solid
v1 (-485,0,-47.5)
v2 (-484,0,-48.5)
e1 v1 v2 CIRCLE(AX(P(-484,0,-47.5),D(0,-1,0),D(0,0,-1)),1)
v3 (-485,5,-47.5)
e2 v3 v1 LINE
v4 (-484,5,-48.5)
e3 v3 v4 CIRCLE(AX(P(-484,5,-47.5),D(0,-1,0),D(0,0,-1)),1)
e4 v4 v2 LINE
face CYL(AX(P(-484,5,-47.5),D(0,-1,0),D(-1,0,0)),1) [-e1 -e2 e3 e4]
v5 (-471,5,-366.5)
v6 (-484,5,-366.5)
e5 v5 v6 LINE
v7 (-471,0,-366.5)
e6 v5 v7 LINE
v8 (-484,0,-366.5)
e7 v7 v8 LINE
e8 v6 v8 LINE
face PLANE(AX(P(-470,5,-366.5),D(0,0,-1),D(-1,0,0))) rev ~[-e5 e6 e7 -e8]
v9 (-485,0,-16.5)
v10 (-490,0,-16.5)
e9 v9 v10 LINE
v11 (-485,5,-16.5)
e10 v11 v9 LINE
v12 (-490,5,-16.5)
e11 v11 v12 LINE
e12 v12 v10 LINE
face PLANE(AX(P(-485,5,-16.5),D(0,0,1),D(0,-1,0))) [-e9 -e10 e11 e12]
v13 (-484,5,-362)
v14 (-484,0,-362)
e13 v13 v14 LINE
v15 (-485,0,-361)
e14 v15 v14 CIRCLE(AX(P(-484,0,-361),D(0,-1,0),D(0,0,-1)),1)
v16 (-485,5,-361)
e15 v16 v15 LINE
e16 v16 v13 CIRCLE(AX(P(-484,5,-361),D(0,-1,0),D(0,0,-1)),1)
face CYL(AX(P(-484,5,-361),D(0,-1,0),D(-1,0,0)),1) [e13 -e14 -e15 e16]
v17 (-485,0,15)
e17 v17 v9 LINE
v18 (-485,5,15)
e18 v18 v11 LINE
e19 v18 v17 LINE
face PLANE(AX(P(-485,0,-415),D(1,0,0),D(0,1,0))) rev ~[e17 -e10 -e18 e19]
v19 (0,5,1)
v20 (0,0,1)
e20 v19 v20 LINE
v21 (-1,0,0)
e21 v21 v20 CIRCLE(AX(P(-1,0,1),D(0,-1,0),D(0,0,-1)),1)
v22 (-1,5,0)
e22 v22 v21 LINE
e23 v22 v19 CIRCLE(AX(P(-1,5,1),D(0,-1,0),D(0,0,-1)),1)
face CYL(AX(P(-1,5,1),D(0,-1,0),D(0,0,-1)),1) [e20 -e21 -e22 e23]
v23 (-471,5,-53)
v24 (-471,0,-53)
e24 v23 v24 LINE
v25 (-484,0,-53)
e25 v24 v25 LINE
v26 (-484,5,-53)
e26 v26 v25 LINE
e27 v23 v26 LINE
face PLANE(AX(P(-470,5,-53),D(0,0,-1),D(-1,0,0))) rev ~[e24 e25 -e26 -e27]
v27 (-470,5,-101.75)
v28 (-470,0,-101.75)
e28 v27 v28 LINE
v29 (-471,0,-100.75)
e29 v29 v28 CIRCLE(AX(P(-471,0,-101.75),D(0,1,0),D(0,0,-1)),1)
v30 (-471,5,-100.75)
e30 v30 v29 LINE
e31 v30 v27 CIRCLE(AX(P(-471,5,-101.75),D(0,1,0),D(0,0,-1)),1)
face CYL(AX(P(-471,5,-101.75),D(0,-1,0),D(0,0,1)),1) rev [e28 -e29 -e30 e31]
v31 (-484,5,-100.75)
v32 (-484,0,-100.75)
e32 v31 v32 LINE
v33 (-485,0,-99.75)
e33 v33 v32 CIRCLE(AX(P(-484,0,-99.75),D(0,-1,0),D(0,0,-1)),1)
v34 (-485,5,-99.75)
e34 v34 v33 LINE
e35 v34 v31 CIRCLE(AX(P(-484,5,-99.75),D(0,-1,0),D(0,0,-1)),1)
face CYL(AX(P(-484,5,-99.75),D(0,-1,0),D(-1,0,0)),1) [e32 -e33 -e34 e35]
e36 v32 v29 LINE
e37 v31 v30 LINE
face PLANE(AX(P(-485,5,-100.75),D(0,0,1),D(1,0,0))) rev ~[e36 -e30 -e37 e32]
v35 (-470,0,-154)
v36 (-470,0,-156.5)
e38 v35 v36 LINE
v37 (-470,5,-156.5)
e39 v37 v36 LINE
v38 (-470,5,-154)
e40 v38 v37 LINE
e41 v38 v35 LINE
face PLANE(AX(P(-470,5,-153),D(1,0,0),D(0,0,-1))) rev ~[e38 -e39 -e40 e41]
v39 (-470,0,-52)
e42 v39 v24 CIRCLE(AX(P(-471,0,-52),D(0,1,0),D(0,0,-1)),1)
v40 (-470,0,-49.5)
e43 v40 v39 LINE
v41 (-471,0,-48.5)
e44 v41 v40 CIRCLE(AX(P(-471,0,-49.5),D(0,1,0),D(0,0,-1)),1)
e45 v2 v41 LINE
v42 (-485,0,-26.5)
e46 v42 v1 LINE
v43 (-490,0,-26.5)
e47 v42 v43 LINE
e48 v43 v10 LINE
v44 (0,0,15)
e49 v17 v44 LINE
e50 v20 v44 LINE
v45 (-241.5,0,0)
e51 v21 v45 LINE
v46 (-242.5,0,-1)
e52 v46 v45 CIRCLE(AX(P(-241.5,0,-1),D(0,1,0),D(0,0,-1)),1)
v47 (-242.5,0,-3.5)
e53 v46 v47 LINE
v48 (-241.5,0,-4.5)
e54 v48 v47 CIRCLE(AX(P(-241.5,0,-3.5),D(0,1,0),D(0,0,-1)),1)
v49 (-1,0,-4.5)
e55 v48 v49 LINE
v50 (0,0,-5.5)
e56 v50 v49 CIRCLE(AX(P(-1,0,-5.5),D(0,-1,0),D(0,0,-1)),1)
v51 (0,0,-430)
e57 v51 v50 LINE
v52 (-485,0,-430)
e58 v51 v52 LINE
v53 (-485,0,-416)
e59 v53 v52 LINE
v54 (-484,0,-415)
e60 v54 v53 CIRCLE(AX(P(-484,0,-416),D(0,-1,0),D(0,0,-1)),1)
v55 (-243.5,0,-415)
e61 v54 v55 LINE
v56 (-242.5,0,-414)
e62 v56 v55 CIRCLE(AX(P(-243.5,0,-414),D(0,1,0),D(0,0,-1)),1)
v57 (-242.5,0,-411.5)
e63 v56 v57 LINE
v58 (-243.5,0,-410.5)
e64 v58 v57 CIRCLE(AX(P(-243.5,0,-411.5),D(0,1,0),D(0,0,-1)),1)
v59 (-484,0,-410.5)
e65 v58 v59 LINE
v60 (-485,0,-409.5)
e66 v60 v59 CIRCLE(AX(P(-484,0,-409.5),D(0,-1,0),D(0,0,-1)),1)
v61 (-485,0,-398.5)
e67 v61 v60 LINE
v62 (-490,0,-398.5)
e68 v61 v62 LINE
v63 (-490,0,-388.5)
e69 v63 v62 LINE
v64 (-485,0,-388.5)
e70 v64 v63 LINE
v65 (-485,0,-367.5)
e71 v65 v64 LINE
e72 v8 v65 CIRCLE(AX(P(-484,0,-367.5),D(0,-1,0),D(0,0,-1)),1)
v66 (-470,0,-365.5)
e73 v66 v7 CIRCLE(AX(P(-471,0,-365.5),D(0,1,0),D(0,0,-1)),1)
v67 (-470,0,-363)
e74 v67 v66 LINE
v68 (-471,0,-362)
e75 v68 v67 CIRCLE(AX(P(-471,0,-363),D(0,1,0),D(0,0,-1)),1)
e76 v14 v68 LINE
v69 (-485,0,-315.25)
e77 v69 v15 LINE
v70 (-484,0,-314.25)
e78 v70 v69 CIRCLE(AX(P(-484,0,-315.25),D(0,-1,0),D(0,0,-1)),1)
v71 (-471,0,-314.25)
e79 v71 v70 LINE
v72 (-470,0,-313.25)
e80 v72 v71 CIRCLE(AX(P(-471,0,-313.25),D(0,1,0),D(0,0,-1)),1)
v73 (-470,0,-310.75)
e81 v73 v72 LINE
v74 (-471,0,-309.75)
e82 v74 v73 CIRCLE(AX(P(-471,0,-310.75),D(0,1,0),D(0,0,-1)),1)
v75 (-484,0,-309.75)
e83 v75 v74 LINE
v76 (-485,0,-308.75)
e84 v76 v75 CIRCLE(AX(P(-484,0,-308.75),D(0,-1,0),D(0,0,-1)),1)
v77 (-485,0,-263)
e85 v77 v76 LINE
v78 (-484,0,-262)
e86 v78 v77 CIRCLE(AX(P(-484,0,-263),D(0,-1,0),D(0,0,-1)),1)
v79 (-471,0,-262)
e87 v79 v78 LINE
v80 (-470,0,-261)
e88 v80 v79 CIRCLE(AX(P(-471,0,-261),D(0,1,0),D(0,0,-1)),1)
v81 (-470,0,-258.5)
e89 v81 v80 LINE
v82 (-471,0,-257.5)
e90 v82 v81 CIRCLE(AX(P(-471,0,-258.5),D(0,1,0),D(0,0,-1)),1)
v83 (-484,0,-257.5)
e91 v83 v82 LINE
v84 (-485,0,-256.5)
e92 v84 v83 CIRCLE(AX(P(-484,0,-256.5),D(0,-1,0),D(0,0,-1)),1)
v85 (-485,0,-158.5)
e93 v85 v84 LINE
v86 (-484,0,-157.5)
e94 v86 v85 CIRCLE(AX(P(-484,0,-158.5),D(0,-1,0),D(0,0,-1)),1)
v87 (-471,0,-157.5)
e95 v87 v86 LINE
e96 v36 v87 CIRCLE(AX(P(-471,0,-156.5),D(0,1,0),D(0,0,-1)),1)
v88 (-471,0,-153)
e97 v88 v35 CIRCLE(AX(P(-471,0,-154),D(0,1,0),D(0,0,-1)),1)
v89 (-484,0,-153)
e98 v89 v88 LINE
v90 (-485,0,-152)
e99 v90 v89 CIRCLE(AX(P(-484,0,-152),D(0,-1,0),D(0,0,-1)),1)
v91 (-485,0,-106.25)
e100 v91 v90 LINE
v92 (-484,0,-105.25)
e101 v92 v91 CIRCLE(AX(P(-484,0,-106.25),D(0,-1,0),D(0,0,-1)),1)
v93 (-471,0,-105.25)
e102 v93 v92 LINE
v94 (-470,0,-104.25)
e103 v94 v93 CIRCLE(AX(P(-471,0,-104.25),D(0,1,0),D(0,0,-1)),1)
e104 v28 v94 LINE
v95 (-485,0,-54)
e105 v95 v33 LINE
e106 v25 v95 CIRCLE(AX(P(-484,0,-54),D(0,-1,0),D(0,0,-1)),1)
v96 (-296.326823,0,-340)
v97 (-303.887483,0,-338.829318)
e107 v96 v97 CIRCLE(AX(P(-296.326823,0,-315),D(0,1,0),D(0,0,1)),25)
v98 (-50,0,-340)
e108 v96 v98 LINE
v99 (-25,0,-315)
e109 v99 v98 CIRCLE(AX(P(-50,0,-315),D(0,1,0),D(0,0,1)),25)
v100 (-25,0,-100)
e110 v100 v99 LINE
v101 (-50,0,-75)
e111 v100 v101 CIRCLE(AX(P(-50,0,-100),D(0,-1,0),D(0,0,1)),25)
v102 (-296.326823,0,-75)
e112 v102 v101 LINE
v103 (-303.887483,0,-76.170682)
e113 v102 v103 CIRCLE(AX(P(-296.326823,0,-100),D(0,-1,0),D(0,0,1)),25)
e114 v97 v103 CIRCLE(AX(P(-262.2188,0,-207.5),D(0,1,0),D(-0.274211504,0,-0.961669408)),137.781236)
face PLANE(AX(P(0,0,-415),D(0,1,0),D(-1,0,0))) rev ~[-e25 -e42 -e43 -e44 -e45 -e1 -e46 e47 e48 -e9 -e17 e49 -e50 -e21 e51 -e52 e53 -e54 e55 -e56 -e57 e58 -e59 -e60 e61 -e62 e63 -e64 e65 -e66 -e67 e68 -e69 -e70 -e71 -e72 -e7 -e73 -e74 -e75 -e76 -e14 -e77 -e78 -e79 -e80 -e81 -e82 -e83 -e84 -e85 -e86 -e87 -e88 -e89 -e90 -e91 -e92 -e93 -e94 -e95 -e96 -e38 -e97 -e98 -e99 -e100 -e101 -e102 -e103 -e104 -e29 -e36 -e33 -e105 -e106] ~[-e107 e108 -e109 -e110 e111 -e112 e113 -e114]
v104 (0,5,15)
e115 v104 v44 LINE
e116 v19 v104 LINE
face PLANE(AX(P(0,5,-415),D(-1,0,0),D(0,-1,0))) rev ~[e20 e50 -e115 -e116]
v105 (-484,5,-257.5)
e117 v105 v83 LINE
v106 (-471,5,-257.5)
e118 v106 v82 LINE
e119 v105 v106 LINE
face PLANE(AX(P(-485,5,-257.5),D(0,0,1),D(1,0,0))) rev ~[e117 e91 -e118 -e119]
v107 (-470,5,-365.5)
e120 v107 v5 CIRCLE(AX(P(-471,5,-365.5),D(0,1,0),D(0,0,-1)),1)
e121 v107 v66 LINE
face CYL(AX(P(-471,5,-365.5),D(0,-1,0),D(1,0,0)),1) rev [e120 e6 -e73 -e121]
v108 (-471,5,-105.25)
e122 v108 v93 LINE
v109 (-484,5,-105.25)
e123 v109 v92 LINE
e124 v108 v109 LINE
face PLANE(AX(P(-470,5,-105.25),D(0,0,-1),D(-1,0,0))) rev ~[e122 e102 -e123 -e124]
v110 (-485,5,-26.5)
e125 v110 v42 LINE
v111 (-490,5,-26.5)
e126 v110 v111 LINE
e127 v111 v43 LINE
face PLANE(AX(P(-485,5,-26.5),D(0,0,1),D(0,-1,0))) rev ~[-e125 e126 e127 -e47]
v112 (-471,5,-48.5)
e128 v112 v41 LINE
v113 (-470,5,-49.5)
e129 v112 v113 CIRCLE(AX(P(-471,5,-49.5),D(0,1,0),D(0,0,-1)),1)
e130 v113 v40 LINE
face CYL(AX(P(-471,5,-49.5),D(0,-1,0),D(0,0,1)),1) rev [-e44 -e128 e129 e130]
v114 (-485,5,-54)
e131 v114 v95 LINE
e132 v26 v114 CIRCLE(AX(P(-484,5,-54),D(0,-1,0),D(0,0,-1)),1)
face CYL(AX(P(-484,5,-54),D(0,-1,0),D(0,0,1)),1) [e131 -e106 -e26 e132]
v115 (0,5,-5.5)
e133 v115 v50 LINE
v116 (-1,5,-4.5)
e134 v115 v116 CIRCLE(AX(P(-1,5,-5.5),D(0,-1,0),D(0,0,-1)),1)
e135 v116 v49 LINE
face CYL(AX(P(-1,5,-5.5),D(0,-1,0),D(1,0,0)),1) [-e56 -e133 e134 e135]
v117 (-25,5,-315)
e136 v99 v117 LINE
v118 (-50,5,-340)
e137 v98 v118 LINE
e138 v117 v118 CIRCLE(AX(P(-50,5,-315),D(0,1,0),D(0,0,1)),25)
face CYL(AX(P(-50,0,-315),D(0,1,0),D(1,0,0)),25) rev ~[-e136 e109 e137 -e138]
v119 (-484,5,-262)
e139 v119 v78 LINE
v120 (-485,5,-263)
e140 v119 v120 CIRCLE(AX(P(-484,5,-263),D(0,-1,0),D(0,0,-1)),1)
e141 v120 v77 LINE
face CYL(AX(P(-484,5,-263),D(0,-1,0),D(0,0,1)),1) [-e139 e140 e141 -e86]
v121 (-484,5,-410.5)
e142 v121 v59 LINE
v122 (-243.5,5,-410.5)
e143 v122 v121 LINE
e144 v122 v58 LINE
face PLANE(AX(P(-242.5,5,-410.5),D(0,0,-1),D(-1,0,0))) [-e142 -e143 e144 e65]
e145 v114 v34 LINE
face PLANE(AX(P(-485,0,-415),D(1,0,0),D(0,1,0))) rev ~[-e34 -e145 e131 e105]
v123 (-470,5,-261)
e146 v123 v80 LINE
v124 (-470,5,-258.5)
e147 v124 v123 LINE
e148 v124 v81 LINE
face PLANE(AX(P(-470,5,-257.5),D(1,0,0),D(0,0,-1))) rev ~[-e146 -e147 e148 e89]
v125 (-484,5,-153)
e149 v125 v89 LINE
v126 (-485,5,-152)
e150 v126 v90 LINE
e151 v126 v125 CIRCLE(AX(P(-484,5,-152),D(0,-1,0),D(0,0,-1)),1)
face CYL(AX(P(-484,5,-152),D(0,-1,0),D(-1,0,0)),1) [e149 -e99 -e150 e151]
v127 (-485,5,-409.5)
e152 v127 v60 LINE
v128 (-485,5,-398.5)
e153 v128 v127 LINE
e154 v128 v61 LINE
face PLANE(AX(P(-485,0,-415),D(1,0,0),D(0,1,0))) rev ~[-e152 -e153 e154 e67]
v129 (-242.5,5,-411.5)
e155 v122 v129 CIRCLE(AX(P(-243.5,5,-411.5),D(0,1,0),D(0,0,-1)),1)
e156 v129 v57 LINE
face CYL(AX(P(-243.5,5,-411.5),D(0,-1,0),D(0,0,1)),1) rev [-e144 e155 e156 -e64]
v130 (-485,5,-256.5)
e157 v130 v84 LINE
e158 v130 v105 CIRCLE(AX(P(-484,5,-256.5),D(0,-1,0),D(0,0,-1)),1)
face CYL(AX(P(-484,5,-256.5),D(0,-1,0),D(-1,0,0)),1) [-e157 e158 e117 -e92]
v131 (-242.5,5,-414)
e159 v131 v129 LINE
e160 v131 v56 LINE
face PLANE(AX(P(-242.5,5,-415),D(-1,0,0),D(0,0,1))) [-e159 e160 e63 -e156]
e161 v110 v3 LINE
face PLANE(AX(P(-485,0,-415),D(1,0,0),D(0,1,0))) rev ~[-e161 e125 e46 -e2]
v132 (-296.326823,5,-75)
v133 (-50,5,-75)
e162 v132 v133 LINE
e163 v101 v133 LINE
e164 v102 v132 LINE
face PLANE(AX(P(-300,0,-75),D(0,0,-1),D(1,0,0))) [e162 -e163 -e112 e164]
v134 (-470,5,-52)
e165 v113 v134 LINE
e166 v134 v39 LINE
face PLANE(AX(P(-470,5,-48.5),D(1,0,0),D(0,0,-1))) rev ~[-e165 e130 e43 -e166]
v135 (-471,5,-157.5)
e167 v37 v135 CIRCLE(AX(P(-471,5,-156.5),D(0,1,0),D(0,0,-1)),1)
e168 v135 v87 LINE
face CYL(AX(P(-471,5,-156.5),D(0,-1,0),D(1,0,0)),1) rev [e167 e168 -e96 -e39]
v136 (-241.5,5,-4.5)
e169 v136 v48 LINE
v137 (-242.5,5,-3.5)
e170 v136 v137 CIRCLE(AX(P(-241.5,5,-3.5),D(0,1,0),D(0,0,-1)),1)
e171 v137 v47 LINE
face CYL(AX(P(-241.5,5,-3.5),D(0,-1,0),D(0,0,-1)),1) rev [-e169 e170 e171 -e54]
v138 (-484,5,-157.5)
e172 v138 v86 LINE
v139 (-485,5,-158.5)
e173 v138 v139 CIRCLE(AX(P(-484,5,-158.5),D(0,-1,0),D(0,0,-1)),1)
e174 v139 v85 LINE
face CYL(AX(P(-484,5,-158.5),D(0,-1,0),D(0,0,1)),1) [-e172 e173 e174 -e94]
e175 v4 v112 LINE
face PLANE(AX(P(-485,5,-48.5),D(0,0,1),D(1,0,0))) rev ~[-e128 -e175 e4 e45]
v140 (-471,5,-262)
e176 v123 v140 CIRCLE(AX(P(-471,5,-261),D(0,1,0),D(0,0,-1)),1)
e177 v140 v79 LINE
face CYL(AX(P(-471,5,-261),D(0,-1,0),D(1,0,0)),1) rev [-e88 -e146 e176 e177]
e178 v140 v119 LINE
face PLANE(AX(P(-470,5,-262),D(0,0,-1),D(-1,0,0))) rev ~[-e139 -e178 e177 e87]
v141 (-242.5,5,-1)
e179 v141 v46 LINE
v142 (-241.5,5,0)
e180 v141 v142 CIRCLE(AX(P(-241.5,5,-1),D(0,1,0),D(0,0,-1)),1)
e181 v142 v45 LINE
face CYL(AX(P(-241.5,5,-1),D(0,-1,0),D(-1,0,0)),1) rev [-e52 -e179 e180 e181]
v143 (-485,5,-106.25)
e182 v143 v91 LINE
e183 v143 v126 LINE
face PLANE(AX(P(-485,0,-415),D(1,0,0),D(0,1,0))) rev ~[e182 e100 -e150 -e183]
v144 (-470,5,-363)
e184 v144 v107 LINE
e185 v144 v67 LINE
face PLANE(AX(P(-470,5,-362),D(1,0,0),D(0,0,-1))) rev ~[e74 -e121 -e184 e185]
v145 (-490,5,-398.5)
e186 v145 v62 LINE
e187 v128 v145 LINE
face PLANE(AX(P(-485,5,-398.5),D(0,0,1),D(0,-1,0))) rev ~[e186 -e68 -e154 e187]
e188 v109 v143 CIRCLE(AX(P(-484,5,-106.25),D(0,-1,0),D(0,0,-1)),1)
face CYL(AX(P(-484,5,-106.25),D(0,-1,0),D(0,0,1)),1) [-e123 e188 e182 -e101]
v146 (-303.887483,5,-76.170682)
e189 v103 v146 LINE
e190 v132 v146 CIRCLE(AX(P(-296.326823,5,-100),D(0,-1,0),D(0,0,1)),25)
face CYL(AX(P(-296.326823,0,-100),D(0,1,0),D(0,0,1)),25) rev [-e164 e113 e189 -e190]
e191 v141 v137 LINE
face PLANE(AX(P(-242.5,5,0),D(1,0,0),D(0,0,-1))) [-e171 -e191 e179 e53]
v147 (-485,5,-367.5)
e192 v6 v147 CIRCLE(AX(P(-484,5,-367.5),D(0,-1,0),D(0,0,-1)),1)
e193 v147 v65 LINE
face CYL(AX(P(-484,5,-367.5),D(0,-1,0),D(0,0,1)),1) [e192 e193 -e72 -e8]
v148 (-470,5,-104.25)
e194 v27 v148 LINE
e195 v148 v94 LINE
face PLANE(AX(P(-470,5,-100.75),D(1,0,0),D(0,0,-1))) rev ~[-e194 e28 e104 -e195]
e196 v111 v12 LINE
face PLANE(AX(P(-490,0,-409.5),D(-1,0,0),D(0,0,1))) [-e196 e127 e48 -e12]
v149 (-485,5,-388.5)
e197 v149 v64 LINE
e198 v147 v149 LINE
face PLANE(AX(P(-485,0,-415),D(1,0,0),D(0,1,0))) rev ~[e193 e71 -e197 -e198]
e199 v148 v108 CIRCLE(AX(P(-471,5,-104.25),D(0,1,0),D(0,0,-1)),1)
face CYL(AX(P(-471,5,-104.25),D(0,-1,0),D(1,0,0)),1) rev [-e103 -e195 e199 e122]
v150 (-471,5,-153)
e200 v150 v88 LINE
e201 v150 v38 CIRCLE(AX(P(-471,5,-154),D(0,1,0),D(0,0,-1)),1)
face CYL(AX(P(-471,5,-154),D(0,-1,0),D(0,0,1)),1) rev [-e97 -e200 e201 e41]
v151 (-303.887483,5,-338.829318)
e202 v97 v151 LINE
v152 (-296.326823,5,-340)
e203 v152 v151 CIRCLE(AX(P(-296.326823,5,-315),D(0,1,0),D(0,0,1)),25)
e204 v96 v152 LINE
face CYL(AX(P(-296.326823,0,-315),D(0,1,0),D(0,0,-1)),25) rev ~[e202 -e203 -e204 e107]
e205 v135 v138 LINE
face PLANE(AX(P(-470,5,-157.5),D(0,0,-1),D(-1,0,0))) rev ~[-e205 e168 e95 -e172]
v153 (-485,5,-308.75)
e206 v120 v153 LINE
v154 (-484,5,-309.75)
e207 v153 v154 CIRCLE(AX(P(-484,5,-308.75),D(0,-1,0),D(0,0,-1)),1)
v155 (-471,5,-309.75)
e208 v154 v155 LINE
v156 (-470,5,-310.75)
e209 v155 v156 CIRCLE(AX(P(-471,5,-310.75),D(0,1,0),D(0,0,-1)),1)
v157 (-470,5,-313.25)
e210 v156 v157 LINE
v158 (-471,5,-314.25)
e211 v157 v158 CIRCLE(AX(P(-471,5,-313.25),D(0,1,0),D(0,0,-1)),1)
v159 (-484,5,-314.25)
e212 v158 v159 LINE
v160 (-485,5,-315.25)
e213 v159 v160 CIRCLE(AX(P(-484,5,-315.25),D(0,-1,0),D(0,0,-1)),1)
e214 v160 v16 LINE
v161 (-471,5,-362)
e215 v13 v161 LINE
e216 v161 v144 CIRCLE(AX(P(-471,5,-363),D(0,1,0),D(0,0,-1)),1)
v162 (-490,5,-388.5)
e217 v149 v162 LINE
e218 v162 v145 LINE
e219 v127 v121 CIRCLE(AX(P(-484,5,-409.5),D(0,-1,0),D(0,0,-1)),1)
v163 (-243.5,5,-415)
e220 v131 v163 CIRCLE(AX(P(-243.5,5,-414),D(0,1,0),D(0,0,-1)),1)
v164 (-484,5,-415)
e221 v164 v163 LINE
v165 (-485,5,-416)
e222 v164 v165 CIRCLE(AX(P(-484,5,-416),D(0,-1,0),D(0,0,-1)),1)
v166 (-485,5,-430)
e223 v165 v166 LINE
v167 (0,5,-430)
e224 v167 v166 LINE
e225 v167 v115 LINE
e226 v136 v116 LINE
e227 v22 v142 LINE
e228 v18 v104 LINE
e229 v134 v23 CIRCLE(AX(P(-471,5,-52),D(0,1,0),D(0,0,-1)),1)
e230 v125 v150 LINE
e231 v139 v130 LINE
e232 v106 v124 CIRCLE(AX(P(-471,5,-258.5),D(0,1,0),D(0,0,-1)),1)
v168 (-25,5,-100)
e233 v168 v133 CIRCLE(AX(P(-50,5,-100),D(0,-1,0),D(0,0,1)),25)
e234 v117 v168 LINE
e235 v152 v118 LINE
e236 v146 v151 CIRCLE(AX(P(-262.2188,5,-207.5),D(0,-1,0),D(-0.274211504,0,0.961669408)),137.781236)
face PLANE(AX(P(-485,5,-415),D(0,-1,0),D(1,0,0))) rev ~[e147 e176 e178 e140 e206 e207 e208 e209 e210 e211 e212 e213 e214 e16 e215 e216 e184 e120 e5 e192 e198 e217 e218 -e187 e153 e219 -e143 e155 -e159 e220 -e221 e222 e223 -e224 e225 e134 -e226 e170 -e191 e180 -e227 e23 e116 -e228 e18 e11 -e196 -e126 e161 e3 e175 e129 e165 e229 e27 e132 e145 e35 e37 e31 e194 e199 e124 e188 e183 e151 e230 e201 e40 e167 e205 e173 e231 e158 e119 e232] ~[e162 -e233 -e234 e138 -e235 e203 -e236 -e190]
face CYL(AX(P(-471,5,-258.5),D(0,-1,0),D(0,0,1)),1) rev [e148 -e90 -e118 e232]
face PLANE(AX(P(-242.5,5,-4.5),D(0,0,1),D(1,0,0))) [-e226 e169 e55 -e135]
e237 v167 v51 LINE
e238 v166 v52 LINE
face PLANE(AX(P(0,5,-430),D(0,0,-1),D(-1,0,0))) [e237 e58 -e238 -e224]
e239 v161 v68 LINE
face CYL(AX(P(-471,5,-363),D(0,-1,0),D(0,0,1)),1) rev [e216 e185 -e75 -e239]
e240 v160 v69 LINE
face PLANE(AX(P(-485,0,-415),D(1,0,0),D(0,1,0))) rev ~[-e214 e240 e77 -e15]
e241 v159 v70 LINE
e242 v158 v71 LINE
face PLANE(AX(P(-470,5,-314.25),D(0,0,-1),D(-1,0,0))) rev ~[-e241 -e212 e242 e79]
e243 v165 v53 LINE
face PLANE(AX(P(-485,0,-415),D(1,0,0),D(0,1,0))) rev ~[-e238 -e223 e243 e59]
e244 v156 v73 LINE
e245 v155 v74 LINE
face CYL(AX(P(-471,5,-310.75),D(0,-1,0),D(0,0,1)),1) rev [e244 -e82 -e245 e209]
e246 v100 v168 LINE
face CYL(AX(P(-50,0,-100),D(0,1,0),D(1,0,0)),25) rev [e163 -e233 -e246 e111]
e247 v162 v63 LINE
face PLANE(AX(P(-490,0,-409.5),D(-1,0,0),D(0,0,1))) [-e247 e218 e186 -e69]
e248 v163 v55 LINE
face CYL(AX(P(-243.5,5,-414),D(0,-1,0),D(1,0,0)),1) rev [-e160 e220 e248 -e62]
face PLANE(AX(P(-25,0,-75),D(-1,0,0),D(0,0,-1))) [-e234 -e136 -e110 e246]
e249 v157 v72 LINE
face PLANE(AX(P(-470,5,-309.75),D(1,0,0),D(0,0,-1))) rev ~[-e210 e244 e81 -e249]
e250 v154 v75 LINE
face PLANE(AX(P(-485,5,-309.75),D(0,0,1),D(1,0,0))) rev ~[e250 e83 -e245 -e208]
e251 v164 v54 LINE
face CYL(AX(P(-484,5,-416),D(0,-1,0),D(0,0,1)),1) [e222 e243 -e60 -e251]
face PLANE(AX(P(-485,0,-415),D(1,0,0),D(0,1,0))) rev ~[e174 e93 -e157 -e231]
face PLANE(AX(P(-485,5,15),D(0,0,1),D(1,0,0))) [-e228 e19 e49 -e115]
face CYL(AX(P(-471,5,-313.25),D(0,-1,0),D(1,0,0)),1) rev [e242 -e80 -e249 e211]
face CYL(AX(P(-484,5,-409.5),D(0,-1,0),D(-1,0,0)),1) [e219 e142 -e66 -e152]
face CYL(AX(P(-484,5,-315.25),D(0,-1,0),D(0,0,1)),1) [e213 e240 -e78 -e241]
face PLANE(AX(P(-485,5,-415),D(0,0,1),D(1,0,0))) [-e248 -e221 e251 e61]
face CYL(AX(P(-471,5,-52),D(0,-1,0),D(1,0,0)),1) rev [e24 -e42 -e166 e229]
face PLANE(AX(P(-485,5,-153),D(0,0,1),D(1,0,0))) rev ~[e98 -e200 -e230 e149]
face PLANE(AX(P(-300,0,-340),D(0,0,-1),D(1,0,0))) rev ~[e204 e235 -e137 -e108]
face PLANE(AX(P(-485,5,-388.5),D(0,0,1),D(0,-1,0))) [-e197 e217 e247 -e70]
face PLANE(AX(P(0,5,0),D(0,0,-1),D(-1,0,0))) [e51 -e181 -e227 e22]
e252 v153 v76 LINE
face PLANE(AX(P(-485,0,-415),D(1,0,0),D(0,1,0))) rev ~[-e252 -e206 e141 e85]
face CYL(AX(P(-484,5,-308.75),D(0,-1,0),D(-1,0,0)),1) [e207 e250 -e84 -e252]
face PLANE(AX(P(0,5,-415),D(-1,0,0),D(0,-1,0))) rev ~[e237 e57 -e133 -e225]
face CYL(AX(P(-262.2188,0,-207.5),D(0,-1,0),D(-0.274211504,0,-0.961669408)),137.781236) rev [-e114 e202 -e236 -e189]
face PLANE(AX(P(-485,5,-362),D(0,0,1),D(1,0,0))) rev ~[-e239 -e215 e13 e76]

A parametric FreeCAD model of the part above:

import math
import FreeCAD as App
import Part
import Sketcher
from FreeCAD import Vector


def edges_at(feature, points):
    """Names of the edges that pass closest to the given points."""
    edges = feature.Shape.Edges
    near = lambda p: min(range(len(edges)), key=lambda i: edges[i].distToShape(Part.Vertex(*p))[0])
    return sorted({f"Edge{near(p) + 1}" for p in points})

doc = App.newDocument("Part")
params = doc.addObject("Spreadsheet::Sheet", "Params")
for row, (alias, value) in enumerate([
    ("sketch1_width", "485 mm"),
    ("sketch1_width2", "275 mm"),
    ("sketch1_height", "415 mm"),
    ("pad1_length", "5 mm"),
    ("fillet_radius", "25 mm"),
    ("sketch2_width", "485 mm"),
    ("sketch2_height", "5 mm"),
    ("pad2_length", "10 mm"),
    ("sketch3_width", "485 mm"),
    ("sketch3_height", "5 mm"),
    ("pad3_length", "10 mm"),
    ("sketch4_width", "242.5 mm"),
    ("sketch4_height", "4.5 mm"),
    ("pocket1_length", "5 mm"),
    ("sketch5_width", "15 mm"),
    ("sketch5_height", "4.5 mm"),
    ("pocket2_length", "5 mm"),
    ("fillet2_radius", "1 mm"),
    ("sketch6_height", "10 mm"),
    ("sketch6_width", "5 mm"),
    ("pad4_length", "5 mm"),
    ("sketch7_height", "5 mm"),
    ("sketch7_width", "485 mm"),
    ("pad5_length", "5 mm"),
], start=1):
    params.set(f"A{row}", alias)
    params.set(f"B{row}", "=" + value)
    params.setAlias(f"B{row}", alias)

body = doc.addObject("PartDesign::Body", "Body")

# Sketch on XZ plane
sketch1 = doc.addObject("Sketcher::SketchObject", "Sketch")
body.addObject(sketch1)
sketch1.AttachmentSupport = (doc.XZ_Plane, [""])
sketch1.MapMode = "FlatFace"
sketch1.addGeometry([
    Part.LineSegment(Vector(0, 0, 0), Vector(0, -415, 0)),  # 0
    Part.LineSegment(Vector(0, -415, 0), Vector(-485, -415, 0)),  # 1
    Part.LineSegment(Vector(-485, -415, 0), Vector(-485, 0, 0)),  # 2
    Part.LineSegment(Vector(-485, 0, 0), Vector(0, 0, 0)),  # 3
    Part.LineSegment(Vector(-25, -75, 0), Vector(-300, -75, 0)),  # 4
    Part.ArcOfCircle(Part.Circle(Vector(-262, -208, 0), Vector(0, 0, 1), 138), math.radians(106), math.radians(254)),  # 5
    Part.LineSegment(Vector(-300, -340, 0), Vector(-25, -340, 0)),  # 6
    Part.LineSegment(Vector(-25, -340, 0), Vector(-25, -75, 0)),  # 7
], False)
sketch1.addConstraint([
    Sketcher.Constraint("Coincident", 0, 2, 1, 1),
    Sketcher.Constraint("Coincident", 1, 2, 2, 1),
    Sketcher.Constraint("Coincident", 2, 2, 3, 1),
    Sketcher.Constraint("Coincident", 3, 2, 0, 1),
    Sketcher.Constraint("Coincident", 4, 2, 5, 1),
    Sketcher.Constraint("Coincident", 5, 2, 6, 1),
    Sketcher.Constraint("Coincident", 6, 2, 7, 1),
    Sketcher.Constraint("Coincident", 7, 2, 4, 1),
    Sketcher.Constraint("Vertical", 0),
    Sketcher.Constraint("Horizontal", 1),
    Sketcher.Constraint("Vertical", 2),
    Sketcher.Constraint("Horizontal", 3),
    Sketcher.Constraint("Horizontal", 4),
    Sketcher.Constraint("Horizontal", 6),
    Sketcher.Constraint("Vertical", 7),
    Sketcher.Constraint("Coincident", 3, 2, -1, 1),
    Sketcher.Constraint("Vertical", 4, 2, 5, 2),
    Sketcher.Constraint("DistanceX", 1, 2, 1, 1, 485.0),
    Sketcher.Constraint("DistanceX", 4, 2, 4, 1, 275.0),
    Sketcher.Constraint("DistanceY", 0, 2, 0, 1, 415.0),
    Sketcher.Constraint("DistanceY", 4, 2, -1, 1, 75.0),
    Sketcher.Constraint("DistanceX", 6, 2, -1, 1, 25.0),
    Sketcher.Constraint("DistanceY", 1, 2, 5, 2, 75.0),
    Sketcher.Constraint("Radius", 5, 137.7812),
])
sketch1.setExpression("Constraints[17]", "Params.sketch1_width")
sketch1.setExpression("Constraints[18]", "Params.sketch1_width2")
sketch1.setExpression("Constraints[19]", "Params.sketch1_height")
pad1 = doc.addObject("PartDesign::Pad", "Pad")
body.addObject(pad1)
pad1.Profile = sketch1
pad1.setExpression("Length", "Params.pad1_length")
pad1.Reversed = True
doc.recompute()

fillet = doc.addObject("PartDesign::Fillet", "Fillet")
body.addObject(fillet)
fillet.Base = (pad1, edges_at(pad1, [
    (-25, 2.5, -340),
    (-25, 2.5, -75),
    (-300, 2.5, -75),
    (-300, 2.5, -340),
]))
fillet.setExpression("Radius", "Params.fillet_radius")

# Sketch on XY plane
sketch2 = doc.addObject("Sketcher::SketchObject", "Sketch001")
body.addObject(sketch2)
sketch2.AttachmentSupport = (doc.XY_Plane, [""])
sketch2.MapMode = "FlatFace"
sketch2.addGeometry([
    Part.LineSegment(Vector(-485, 5, 0), Vector(-485, 0, 0)),
    Part.LineSegment(Vector(-485, 0, 0), Vector(0, 0, 0)),
    Part.LineSegment(Vector(0, 0, 0), Vector(0, 5, 0)),
    Part.LineSegment(Vector(0, 5, 0), Vector(-485, 5, 0)),
], False)
sketch2.addConstraint([
    Sketcher.Constraint("Coincident", 0, 2, 1, 1),
    Sketcher.Constraint("Coincident", 1, 2, 2, 1),
    Sketcher.Constraint("Coincident", 2, 2, 3, 1),
    Sketcher.Constraint("Coincident", 3, 2, 0, 1),
    Sketcher.Constraint("Vertical", 0),
    Sketcher.Constraint("Horizontal", 1),
    Sketcher.Constraint("Vertical", 2),
    Sketcher.Constraint("Horizontal", 3),
    Sketcher.Constraint("Coincident", 1, 2, -1, 1),
    Sketcher.Constraint("DistanceX", 1, 1, 1, 2, 485.0),
    Sketcher.Constraint("DistanceY", 0, 2, 0, 1, 5.0),
])
sketch2.setExpression("Constraints[9]", "Params.sketch2_width")
sketch2.setExpression("Constraints[10]", "Params.sketch2_height")
pad2 = doc.addObject("PartDesign::Pad", "Pad001")
body.addObject(pad2)
pad2.Profile = sketch2
pad2.setExpression("Length", "Params.pad2_length")

# Sketch on XY plane
sketch3 = doc.addObject("Sketcher::SketchObject", "Sketch002")
body.addObject(sketch3)
sketch3.AttachmentSupport = (doc.XY_Plane, [""])
sketch3.MapMode = "FlatFace"
sketch3.AttachmentOffset = App.Placement(Vector(0, 0, -415), App.Rotation())
sketch3.addGeometry([
    Part.LineSegment(Vector(0, 0, 0), Vector(-485, 0, 0)),
    Part.LineSegment(Vector(-485, 0, 0), Vector(-485, 5, 0)),
    Part.LineSegment(Vector(-485, 5, 0), Vector(0, 5, 0)),
    Part.LineSegment(Vector(0, 5, 0), Vector(0, 0, 0)),
], False)
sketch3.addConstraint([
    Sketcher.Constraint("Coincident", 0, 2, 1, 1),
    Sketcher.Constraint("Coincident", 1, 2, 2, 1),
    Sketcher.Constraint("Coincident", 2, 2, 3, 1),
    Sketcher.Constraint("Coincident", 3, 2, 0, 1),
    Sketcher.Constraint("Horizontal", 0),
    Sketcher.Constraint("Vertical", 1),
    Sketcher.Constraint("Horizontal", 2),
    Sketcher.Constraint("Vertical", 3),
    Sketcher.Constraint("Coincident", 3, 2, -1, 1),
    Sketcher.Constraint("DistanceX", 0, 2, 0, 1, 485.0),
    Sketcher.Constraint("DistanceY", 1, 1, 1, 2, 5.0),
])
sketch3.setExpression("Constraints[9]", "Params.sketch3_width")
sketch3.setExpression("Constraints[10]", "Params.sketch3_height")
pad3 = doc.addObject("PartDesign::Pad", "Pad002")
body.addObject(pad3)
pad3.Profile = sketch3
pad3.setExpression("Length", "Params.pad3_length")
pad3.Reversed = True

# Sketch on XZ plane
sketch4 = doc.addObject("Sketcher::SketchObject", "Sketch003")
body.addObject(sketch4)
sketch4.AttachmentSupport = (doc.XZ_Plane, [""])
sketch4.MapMode = "FlatFace"
sketch4.AttachmentOffset = App.Placement(Vector(0, 0, -5), App.Rotation())
sketch4.addGeometry([
    Part.LineSegment(Vector(-242.5, 0, 0), Vector(0, 0, 0)),  # 0
    Part.LineSegment(Vector(0, 0, 0), Vector(0, -4.5, 0)),  # 1
    Part.LineSegment(Vector(0, -4.5, 0), Vector(-242.5, -4.5, 0)),  # 2
    Part.LineSegment(Vector(-242.5, -4.5, 0), Vector(-242.5, 0, 0)),  # 3
    Part.LineSegment(Vector(-485, -415, 0), Vector(-485, -410.5, 0)),  # 4
    Part.LineSegment(Vector(-485, -410.5, 0), Vector(-242.5, -410.5, 0)),  # 5
    Part.LineSegment(Vector(-242.5, -410.5, 0), Vector(-242.5, -415, 0)),  # 6
    Part.LineSegment(Vector(-242.5, -415, 0), Vector(-485, -415, 0)),  # 7
], False)
sketch4.addConstraint([
    Sketcher.Constraint("Coincident", 0, 2, 1, 1),
    Sketcher.Constraint("Coincident", 1, 2, 2, 1),
    Sketcher.Constraint("Coincident", 2, 2, 3, 1),
    Sketcher.Constraint("Coincident", 3, 2, 0, 1),
    Sketcher.Constraint("Coincident", 4, 2, 5, 1),
    Sketcher.Constraint("Coincident", 5, 2, 6, 1),
    Sketcher.Constraint("Coincident", 6, 2, 7, 1),
    Sketcher.Constraint("Coincident", 7, 2, 4, 1),
    Sketcher.Constraint("Horizontal", 0),
    Sketcher.Constraint("Vertical", 1),
    Sketcher.Constraint("Horizontal", 2),
    Sketcher.Constraint("Vertical", 3),
    Sketcher.Constraint("Vertical", 4),
    Sketcher.Constraint("Horizontal", 5),
    Sketcher.Constraint("Vertical", 6),
    Sketcher.Constraint("Horizontal", 7),
    Sketcher.Constraint("Coincident", 0, 2, -1, 1),
    Sketcher.Constraint("Vertical", 3, 2, 5, 2),
    Sketcher.Constraint("Equal", 2, 5),
    Sketcher.Constraint("Equal", 3, 4),
    Sketcher.Constraint("DistanceX", 0, 1, 0, 2, 242.5),
    Sketcher.Constraint("DistanceY", 1, 2, 1, 1, 4.5),
    Sketcher.Constraint("DistanceY", 6, 2, -1, 1, 415.0),
])
sketch4.setExpression("Constraints[20]", "Params.sketch4_width")
sketch4.setExpression("Constraints[21]", "Params.sketch4_height")
pocket1 = doc.addObject("PartDesign::Pocket", "Pocket")
body.addObject(pocket1)
pocket1.Profile = sketch4
pocket1.setExpression("Length", "Params.pocket1_length")
pocket1.Reversed = True

# Sketch on XZ plane
sketch5 = doc.addObject("Sketcher::SketchObject", "Sketch004")
body.addObject(sketch5)
sketch5.AttachmentSupport = (doc.XZ_Plane, [""])
sketch5.MapMode = "FlatFace"
sketch5.AttachmentOffset = App.Placement(Vector(0, 0, -5), App.Rotation())
sketch5.addGeometry([
    Part.LineSegment(Vector(-470, -366.5, 0), Vector(-485, -366.5, 0)),  # 0
    Part.LineSegment(Vector(-485, -366.5, 0), Vector(-485, -362, 0)),  # 1
    Part.LineSegment(Vector(-485, -362, 0), Vector(-470, -362, 0)),  # 2
    Part.LineSegment(Vector(-470, -362, 0), Vector(-470, -366.5, 0)),  # 3
    Part.LineSegment(Vector(-470, -53, 0), Vector(-485, -53, 0)),  # 4
    Part.LineSegment(Vector(-485, -53, 0), Vector(-485, -48.5, 0)),  # 5
    Part.LineSegment(Vector(-485, -48.5, 0), Vector(-470, -48.5, 0)),  # 6
    Part.LineSegment(Vector(-470, -48.5, 0), Vector(-470, -53, 0)),  # 7
    Part.LineSegment(Vector(-470, -105.2, 0), Vector(-485, -105.2, 0)),  # 8
    Part.LineSegment(Vector(-485, -105.2, 0), Vector(-485, -100.8, 0)),  # 9
    Part.LineSegment(Vector(-485, -100.8, 0), Vector(-470, -100.8, 0)),  # 10
    Part.LineSegment(Vector(-470, -100.8, 0), Vector(-470, -105.2, 0)),  # 11
    Part.LineSegment(Vector(-470, -157.5, 0), Vector(-485, -157.5, 0)),  # 12
    Part.LineSegment(Vector(-485, -157.5, 0), Vector(-485, -153, 0)),  # 13
    Part.LineSegment(Vector(-485, -153, 0), Vector(-470, -153, 0)),  # 14
    Part.LineSegment(Vector(-470, -153, 0), Vector(-470, -157.5, 0)),  # 15
    Part.LineSegment(Vector(-470, -262, 0), Vector(-485, -262, 0)),  # 16
    Part.LineSegment(Vector(-485, -262, 0), Vector(-485, -257.5, 0)),  # 17
    Part.LineSegment(Vector(-485, -257.5, 0), Vector(-470, -257.5, 0)),  # 18
    Part.LineSegment(Vector(-470, -257.5, 0), Vector(-470, -262, 0)),  # 19
    Part.LineSegment(Vector(-470, -314.2, 0), Vector(-485, -314.2, 0)),  # 20
    Part.LineSegment(Vector(-485, -314.2, 0), Vector(-485, -309.8, 0)),  # 21
    Part.LineSegment(Vector(-485, -309.8, 0), Vector(-470, -309.8, 0)),  # 22
    Part.LineSegment(Vector(-470, -309.8, 0), Vector(-470, -314.2, 0)),  # 23
], False)
sketch5.addConstraint([
    Sketcher.Constraint("Coincident", 0, 2, 1, 1),
    Sketcher.Constraint("Coincident", 1, 2, 2, 1),
    Sketcher.Constraint("Coincident", 2, 2, 3, 1),
    Sketcher.Constraint("Coincident", 3, 2, 0, 1),
    Sketcher.Constraint("Coincident", 4, 2, 5, 1),
    Sketcher.Constraint("Coincident", 5, 2, 6, 1),
    Sketcher.Constraint("Coincident", 6, 2, 7, 1),
    Sketcher.Constraint("Coincident", 7, 2, 4, 1),
    Sketcher.Constraint("Coincident", 8, 2, 9, 1),
    Sketcher.Constraint("Coincident", 9, 2, 10, 1),
    Sketcher.Constraint("Coincident", 10, 2, 11, 1),
    Sketcher.Constraint("Coincident", 11, 2, 8, 1),
    Sketcher.Constraint("Coincident", 12, 2, 13, 1),
    Sketcher.Constraint("Coincident", 13, 2, 14, 1),
    Sketcher.Constraint("Coincident", 14, 2, 15, 1),
    Sketcher.Constraint("Coincident", 15, 2, 12, 1),
    Sketcher.Constraint("Coincident", 16, 2, 17, 1),
    Sketcher.Constraint("Coincident", 17, 2, 18, 1),
    Sketcher.Constraint("Coincident", 18, 2, 19, 1),
    Sketcher.Constraint("Coincident", 19, 2, 16, 1),
    Sketcher.Constraint("Coincident", 20, 2, 21, 1),
    Sketcher.Constraint("Coincident", 21, 2, 22, 1),
    Sketcher.Constraint("Coincident", 22, 2, 23, 1),
    Sketcher.Constraint("Coincident", 23, 2, 20, 1),
    Sketcher.Constraint("Horizontal", 0),
    Sketcher.Constraint("Vertical", 1),
    Sketcher.Constraint("Horizontal", 2),
    Sketcher.Constraint("Vertical", 3),
    Sketcher.Constraint("Horizontal", 4),
    Sketcher.Constraint("Vertical", 5),
    Sketcher.Constraint("Horizontal", 6),
    Sketcher.Constraint("Vertical", 7),
    Sketcher.Constraint("Horizontal", 8),
    Sketcher.Constraint("Vertical", 9),
    Sketcher.Constraint("Horizontal", 10),
    Sketcher.Constraint("Vertical", 11),
    Sketcher.Constraint("Horizontal", 12),
    Sketcher.Constraint("Vertical", 13),
    Sketcher.Constraint("Horizontal", 14),
    Sketcher.Constraint("Vertical", 15),
    Sketcher.Constraint("Horizontal", 16),
    Sketcher.Constraint("Vertical", 17),
    Sketcher.Constraint("Horizontal", 18),
    Sketcher.Constraint("Vertical", 19),
    Sketcher.Constraint("Horizontal", 20),
    Sketcher.Constraint("Vertical", 21),
    Sketcher.Constraint("Horizontal", 22),
    Sketcher.Constraint("Vertical", 23),
    Sketcher.Constraint("Vertical", 1, 2, 4, 2),
    Sketcher.Constraint("Vertical", 3, 2, 6, 2),
    Sketcher.Constraint("Vertical", 5, 2, 8, 2),
    Sketcher.Constraint("Vertical", 7, 2, 10, 2),
    Sketcher.Constraint("Vertical", 9, 2, 12, 2),
    Sketcher.Constraint("Vertical", 11, 2, 14, 2),
    Sketcher.Constraint("Vertical", 13, 2, 16, 2),
    Sketcher.Constraint("Vertical", 15, 2, 18, 2),
    Sketcher.Constraint("Vertical", 17, 2, 20, 2),
    Sketcher.Constraint("Vertical", 19, 2, 22, 2),
    Sketcher.Constraint("Equal", 3, 5),
    Sketcher.Constraint("Equal", 7, 9),
    Sketcher.Constraint("Equal", 11, 13),
    Sketcher.Constraint("Equal", 15, 17),
    Sketcher.Constraint("Equal", 19, 21),
    Sketcher.Constraint("DistanceX", 0, 2, 0, 1, 15.0),
    Sketcher.Constraint("DistanceY", 1, 1, 1, 2, 4.5),
    Sketcher.Constraint("DistanceY", 5, 2, -1, 1, 48.5),
    Sketcher.Constraint("DistanceY", 8, 2, 4, 2, 52.25),
    Sketcher.Constraint("DistanceY", 12, 2, 8, 2, 52.25),
    Sketcher.Constraint("DistanceY", 0, 2, 20, 2, 52.25),
    Sketcher.Constraint("DistanceY", 20, 2, 16, 2, 52.25),
    Sketcher.Constraint("DistanceX", 0, 2, -1, 1, 485.0),
    Sketcher.Constraint("DistanceY", 1, 2, -1, 1, 362.0),
])
sketch5.setExpression("Constraints[63]", "Params.sketch5_width")
sketch5.setExpression("Constraints[64]", "Params.sketch5_height")
pocket2 = doc.addObject("PartDesign::Pocket", "Pocket001")
body.addObject(pocket2)
pocket2.Profile = sketch5
pocket2.setExpression("Length", "Params.pocket2_length")
pocket2.Reversed = True
doc.recompute()

fillet2 = doc.addObject("PartDesign::Fillet", "Fillet001")
body.addObject(fillet2)
fillet2.Base = (pocket2, edges_at(pocket2, [
    (-242.5, 2.5, 0),
    (-242.5, 2.5, -4.5),
    (0, 2.5, 0),
    (0, 2.5, -4.5),
    (-470, 2.5, -48.5),
    (-470, 2.5, -53),
    (-485, 2.5, -53),
    (-485, 2.5, -48.5),
    (-470, 2.5, -100.75),
    (-470, 2.5, -105.25),
    (-485, 2.5, -105.25),
    (-485, 2.5, -100.75),
    (-485, 2.5, -157.5),
    (-485, 2.5, -153),
    (-470, 2.5, -153),
    (-470, 2.5, -157.5),
    (-485, 2.5, -257.5),
    (-470, 2.5, -257.5),
    (-470, 2.5, -262),
    (-485, 2.5, -262),
    (-470, 2.5, -309.75),
    (-470, 2.5, -314.25),
    (-485, 2.5, -314.25),
    (-485, 2.5, -309.75),
    (-485, 2.5, -366.5),
    (-485, 2.5, -362),
    (-470, 2.5, -362),
    (-470, 2.5, -366.5),
    (-485, 2.5, -410.5),
    (-485, 2.5, -415),
    (-242.5, 2.5, -410.5),
    (-242.5, 2.5, -415),
]))
fillet2.setExpression("Radius", "Params.fillet2_radius")

# Sketch on YZ plane
sketch6 = doc.addObject("Sketcher::SketchObject", "Sketch005")
body.addObject(sketch6)
sketch6.AttachmentSupport = (doc.YZ_Plane, [""])
sketch6.MapMode = "FlatFace"
sketch6.AttachmentOffset = App.Placement(Vector(0, 0, -485), App.Rotation())
sketch6.addGeometry([
    Part.LineSegment(Vector(0, -388, 0), Vector(5, -388, 0)),  # 0
    Part.LineSegment(Vector(5, -388, 0), Vector(5, -398, 0)),  # 1
    Part.LineSegment(Vector(5, -398, 0), Vector(0, -398, 0)),  # 2
    Part.LineSegment(Vector(0, -398, 0), Vector(0, -388, 0)),  # 3
    Part.LineSegment(Vector(5, -16, 0), Vector(5, -26, 0)),  # 4
    Part.LineSegment(Vector(5, -26, 0), Vector(0, -26, 0)),  # 5
    Part.LineSegment(Vector(0, -26, 0), Vector(0, -16, 0)),  # 6
    Part.LineSegment(Vector(0, -16, 0), Vector(5, -16, 0)),  # 7
], False)
sketch6.addConstraint([
    Sketcher.Constraint("Coincident", 0, 2, 1, 1),
    Sketcher.Constraint("Coincident", 1, 2, 2, 1),
    Sketcher.Constraint("Coincident", 2, 2, 3, 1),
    Sketcher.Constraint("Coincident", 3, 2, 0, 1),
    Sketcher.Constraint("Coincident", 4, 2, 5, 1),
    Sketcher.Constraint("Coincident", 5, 2, 6, 1),
    Sketcher.Constraint("Coincident", 6, 2, 7, 1),
    Sketcher.Constraint("Coincident", 7, 2, 4, 1),
    Sketcher.Constraint("Horizontal", 0),
    Sketcher.Constraint("Vertical", 1),
    Sketcher.Constraint("Horizontal", 2),
    Sketcher.Constraint("Vertical", 3),
    Sketcher.Constraint("Vertical", 4),
    Sketcher.Constraint("Horizontal", 5),
    Sketcher.Constraint("Vertical", 6),
    Sketcher.Constraint("Horizontal", 7),
    Sketcher.Constraint("PointOnObject", 2, 2, -2),
    Sketcher.Constraint("PointOnObject", 5, 2, -2),
    Sketcher.Constraint("Vertical", 1, 2, 4, 2),
    Sketcher.Constraint("Equal", 3, 4),
    Sketcher.Constraint("DistanceY", 1, 2, 1, 1, 10.0),
    Sketcher.Constraint("DistanceX", 0, 1, 0, 2, 5.0),
    Sketcher.Constraint("DistanceY", 0, 2, 4, 2, 362.0),
    Sketcher.Constraint("DistanceY", 0, 2, -1, 1, 388.5),
])
sketch6.setExpression("Constraints[20]", "Params.sketch6_height")
sketch6.setExpression("Constraints[21]", "Params.sketch6_width")
pad4 = doc.addObject("PartDesign::Pad", "Pad003")
body.addObject(pad4)
pad4.Profile = sketch6
pad4.setExpression("Length", "Params.pad4_length")
pad4.Reversed = True

# Sketch on XZ plane
sketch7 = doc.addObject("Sketcher::SketchObject", "Sketch006")
body.addObject(sketch7)
sketch7.AttachmentSupport = (doc.XZ_Plane, [""])
sketch7.MapMode = "FlatFace"
sketch7.AttachmentOffset = App.Placement(Vector(0, 0, -5), App.Rotation())
sketch7.addGeometry([
    Part.LineSegment(Vector(0, 15, 0), Vector(0, 10, 0)),  # 0
    Part.LineSegment(Vector(0, 10, 0), Vector(-485, 10, 0)),  # 1
    Part.LineSegment(Vector(-485, 10, 0), Vector(-485, 15, 0)),  # 2
    Part.LineSegment(Vector(-485, 15, 0), Vector(0, 15, 0)),  # 3
    Part.LineSegment(Vector(-485, -425, 0), Vector(0, -425, 0)),  # 4
    Part.LineSegment(Vector(0, -425, 0), Vector(0, -430, 0)),  # 5
    Part.LineSegment(Vector(0, -430, 0), Vector(-485, -430, 0)),  # 6
    Part.LineSegment(Vector(-485, -430, 0), Vector(-485, -425, 0)),  # 7
], False)
sketch7.addConstraint([
    Sketcher.Constraint("Coincident", 0, 2, 1, 1),
    Sketcher.Constraint("Coincident", 1, 2, 2, 1),
    Sketcher.Constraint("Coincident", 2, 2, 3, 1),
    Sketcher.Constraint("Coincident", 3, 2, 0, 1),
    Sketcher.Constraint("Coincident", 4, 2, 5, 1),
    Sketcher.Constraint("Coincident", 5, 2, 6, 1),
    Sketcher.Constraint("Coincident", 6, 2, 7, 1),
    Sketcher.Constraint("Coincident", 7, 2, 4, 1),
    Sketcher.Constraint("Vertical", 0),
    Sketcher.Constraint("Horizontal", 1),
    Sketcher.Constraint("Vertical", 2),
    Sketcher.Constraint("Horizontal", 3),
    Sketcher.Constraint("Horizontal", 4),
    Sketcher.Constraint("Vertical", 5),
    Sketcher.Constraint("Horizontal", 6),
    Sketcher.Constraint("Vertical", 7),
    Sketcher.Constraint("PointOnObject", 0, 2, -2),
    Sketcher.Constraint("PointOnObject", 4, 2, -2),
    Sketcher.Constraint("Vertical", 2, 2, 6, 2),
    Sketcher.Constraint("Equal", 2, 5),
    Sketcher.Constraint("DistanceY", 0, 2, 0, 1, 5.0),
    Sketcher.Constraint("DistanceX", 1, 2, 1, 1, 485.0),
    Sketcher.Constraint("DistanceY", -1, 1, 0, 2, 10.0),
    Sketcher.Constraint("DistanceY", 4, 2, -1, 1, 425.0),
])
sketch7.setExpression("Constraints[20]", "Params.sketch7_height")
sketch7.setExpression("Constraints[21]", "Params.sketch7_width")
pad5 = doc.addObject("PartDesign::Pad", "Pad004")
body.addObject(pad5)
pad5.Profile = sketch7
pad5.setExpression("Length", "Params.pad5_length")

doc.recompute()
